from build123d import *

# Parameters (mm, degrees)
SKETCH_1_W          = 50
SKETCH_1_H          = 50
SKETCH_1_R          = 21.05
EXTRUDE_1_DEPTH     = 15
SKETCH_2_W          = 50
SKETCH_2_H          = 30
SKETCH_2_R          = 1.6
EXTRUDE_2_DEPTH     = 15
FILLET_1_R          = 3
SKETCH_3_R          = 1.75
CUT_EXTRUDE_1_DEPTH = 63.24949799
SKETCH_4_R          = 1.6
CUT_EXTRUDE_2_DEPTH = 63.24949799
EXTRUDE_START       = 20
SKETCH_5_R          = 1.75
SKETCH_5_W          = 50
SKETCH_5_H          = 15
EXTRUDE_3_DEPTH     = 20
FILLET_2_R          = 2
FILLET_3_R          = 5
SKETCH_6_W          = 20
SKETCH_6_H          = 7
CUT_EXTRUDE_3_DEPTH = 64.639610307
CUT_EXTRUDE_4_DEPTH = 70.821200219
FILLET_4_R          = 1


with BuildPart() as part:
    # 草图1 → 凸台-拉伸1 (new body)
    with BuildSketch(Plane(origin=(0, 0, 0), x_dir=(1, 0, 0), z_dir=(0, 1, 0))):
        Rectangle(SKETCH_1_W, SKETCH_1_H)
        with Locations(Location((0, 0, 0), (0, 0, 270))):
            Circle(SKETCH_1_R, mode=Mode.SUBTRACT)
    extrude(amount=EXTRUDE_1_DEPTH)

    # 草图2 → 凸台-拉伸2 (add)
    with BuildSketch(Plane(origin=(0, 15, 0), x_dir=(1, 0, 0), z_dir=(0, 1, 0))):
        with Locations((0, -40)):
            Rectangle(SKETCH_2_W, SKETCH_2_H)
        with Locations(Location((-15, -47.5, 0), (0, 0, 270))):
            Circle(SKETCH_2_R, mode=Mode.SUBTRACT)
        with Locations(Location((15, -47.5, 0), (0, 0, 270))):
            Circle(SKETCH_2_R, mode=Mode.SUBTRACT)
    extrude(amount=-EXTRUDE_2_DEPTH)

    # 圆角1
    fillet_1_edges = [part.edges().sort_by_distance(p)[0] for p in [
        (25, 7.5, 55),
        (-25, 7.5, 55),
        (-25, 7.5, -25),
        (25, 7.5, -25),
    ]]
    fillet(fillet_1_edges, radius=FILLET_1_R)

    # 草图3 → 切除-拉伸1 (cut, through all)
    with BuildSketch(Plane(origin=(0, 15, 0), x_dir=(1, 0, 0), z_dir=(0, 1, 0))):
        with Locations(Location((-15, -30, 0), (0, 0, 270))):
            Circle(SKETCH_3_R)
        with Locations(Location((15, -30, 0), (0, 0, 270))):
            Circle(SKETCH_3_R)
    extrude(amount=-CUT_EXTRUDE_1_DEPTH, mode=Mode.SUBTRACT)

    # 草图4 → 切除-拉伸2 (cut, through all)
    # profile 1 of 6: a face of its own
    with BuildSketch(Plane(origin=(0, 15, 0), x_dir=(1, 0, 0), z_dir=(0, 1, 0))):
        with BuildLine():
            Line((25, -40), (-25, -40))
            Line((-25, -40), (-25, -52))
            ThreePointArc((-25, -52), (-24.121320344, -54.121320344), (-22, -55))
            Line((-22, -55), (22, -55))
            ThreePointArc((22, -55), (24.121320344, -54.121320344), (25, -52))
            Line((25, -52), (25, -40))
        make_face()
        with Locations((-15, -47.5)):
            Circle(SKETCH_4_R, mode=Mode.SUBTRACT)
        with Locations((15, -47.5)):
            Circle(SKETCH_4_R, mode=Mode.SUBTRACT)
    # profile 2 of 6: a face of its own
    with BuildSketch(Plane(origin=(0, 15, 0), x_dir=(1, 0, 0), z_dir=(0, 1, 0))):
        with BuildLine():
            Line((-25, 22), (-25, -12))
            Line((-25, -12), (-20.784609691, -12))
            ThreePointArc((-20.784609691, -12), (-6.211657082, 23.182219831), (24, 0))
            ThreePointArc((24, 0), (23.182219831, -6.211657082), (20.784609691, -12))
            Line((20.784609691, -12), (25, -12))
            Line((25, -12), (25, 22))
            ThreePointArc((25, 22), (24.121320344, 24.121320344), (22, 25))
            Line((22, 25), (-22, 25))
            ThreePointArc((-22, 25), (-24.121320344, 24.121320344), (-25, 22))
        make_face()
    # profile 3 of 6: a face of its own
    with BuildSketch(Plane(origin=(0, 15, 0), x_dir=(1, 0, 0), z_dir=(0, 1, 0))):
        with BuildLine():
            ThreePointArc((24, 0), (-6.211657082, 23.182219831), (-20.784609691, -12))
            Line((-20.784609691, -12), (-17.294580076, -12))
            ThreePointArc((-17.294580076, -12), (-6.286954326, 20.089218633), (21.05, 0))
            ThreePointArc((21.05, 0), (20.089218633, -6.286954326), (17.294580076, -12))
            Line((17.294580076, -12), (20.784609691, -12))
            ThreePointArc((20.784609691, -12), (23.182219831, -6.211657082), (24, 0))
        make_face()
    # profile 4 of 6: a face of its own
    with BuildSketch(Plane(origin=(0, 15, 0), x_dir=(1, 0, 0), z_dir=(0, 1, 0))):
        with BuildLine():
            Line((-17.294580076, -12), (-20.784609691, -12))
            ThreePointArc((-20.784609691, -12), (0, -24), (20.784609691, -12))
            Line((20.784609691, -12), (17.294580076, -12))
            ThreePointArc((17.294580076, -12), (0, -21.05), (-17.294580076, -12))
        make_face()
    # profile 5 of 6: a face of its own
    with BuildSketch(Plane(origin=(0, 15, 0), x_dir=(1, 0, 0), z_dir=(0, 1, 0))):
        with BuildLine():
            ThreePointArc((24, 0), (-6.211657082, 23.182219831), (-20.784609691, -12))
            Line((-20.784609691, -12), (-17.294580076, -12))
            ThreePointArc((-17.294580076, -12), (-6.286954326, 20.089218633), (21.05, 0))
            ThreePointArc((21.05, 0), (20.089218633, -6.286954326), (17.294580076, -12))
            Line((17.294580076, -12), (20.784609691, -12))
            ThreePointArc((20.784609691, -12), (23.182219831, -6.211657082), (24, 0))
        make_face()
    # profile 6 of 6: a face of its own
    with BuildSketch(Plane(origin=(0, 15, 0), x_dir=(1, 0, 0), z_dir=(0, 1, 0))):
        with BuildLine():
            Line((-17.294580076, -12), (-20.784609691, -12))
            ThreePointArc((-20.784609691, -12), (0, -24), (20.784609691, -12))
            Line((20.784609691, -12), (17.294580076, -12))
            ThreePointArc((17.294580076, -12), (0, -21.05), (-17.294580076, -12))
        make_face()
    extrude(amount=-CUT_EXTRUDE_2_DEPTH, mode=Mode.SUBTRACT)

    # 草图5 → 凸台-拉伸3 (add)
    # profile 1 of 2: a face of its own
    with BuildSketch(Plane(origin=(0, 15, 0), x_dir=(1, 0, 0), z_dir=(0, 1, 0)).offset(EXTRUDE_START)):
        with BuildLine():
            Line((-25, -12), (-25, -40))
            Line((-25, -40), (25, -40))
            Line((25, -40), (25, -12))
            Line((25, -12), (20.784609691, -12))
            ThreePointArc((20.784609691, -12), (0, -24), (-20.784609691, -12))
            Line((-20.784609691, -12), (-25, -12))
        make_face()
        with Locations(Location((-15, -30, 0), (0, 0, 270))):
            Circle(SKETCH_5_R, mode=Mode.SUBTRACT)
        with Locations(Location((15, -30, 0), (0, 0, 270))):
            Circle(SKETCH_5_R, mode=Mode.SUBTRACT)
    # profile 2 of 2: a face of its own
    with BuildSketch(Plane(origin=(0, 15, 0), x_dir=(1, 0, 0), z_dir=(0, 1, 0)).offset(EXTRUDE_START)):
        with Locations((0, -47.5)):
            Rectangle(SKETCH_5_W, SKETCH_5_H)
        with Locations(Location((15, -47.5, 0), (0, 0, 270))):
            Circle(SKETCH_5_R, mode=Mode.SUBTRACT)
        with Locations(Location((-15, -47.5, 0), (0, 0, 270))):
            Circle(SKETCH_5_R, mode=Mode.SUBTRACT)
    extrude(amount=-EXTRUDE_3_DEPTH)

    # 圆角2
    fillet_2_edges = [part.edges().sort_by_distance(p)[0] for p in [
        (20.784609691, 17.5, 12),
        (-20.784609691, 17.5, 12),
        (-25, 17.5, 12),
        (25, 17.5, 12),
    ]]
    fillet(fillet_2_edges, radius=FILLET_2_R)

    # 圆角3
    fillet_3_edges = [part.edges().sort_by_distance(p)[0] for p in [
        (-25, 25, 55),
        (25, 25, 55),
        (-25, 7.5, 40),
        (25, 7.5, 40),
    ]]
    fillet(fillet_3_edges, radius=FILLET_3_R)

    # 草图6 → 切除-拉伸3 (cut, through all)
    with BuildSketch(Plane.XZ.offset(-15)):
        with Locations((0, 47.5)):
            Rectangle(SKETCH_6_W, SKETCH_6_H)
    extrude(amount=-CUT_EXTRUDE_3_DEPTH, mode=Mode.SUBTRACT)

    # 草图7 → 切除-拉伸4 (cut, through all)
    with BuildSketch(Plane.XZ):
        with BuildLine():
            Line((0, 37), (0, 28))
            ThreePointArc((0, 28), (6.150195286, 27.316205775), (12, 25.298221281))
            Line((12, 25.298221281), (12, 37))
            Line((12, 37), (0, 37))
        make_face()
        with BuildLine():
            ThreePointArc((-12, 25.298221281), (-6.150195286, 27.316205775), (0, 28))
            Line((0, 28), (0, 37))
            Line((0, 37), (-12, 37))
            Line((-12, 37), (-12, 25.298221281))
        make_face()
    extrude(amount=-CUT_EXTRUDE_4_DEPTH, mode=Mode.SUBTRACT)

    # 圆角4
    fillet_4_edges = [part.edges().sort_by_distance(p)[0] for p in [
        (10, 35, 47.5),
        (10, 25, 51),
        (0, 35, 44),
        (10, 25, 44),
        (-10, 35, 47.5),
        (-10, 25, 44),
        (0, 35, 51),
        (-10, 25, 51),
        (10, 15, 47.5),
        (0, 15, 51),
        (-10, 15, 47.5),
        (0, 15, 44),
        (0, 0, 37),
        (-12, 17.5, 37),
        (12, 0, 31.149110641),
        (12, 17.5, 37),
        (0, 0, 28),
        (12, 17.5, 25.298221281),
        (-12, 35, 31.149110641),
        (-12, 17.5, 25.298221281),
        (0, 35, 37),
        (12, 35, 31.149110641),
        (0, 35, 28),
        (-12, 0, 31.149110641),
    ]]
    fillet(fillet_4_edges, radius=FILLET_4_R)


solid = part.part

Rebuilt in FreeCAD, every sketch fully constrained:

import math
import FreeCAD as App
import Part
import Sketcher


def edges_at(feature, points):
    """Names of the edges that pass closest to the given points."""
    edges = feature.Shape.Edges
    near = lambda p: min(range(len(edges)), key=lambda i: edges[i].distToShape(Part.Vertex(*p))[0])
    return sorted({f"Edge{near(p) + 1}" for p in points})


def add_polygon(sketch, points):
    """Adds a closed chain of lines whose ends are joined by coincident constraints."""
    first, n = sketch.GeometryCount, len(points)
    for a, b in zip(points, points[1:] + points[:1]):
        sketch.addGeometry(Part.LineSegment(App.Vector(*a, 0), App.Vector(*b, 0)), False)
    for i in range(n):
        sketch.addConstraint(Sketcher.Constraint("Coincident", first + i, 2, first + (i + 1) % n, 1))

doc = App.newDocument("Part")
body = doc.addObject("PartDesign::Body", "Body")

# Sketch on XZ plane
sketch1 = body.newObject("Sketcher::SketchObject", "Sketch")
sketch1.AttachmentSupport = (doc.getObject("XZ_Plane"), [""])
sketch1.MapMode = "FlatFace"
add_polygon(sketch1, [(-25, -25), (-25, 25), (25, 25), (25, -25)])  # lines 0-3
sketch1.addGeometry(Part.Circle(App.Vector(0, 0, 0), App.Vector(0, 0, 1), 21), False)  # 4
sketch1.addConstraint(Sketcher.Constraint("Vertical", 0))
sketch1.addConstraint(Sketcher.Constraint("Horizontal", 1))
sketch1.addConstraint(Sketcher.Constraint("Vertical", 2))
sketch1.addConstraint(Sketcher.Constraint("Horizontal", 3))
sketch1.addConstraint(Sketcher.Constraint("Coincident", 4, 3, -1, 1))
sketch1.addConstraint(Sketcher.Constraint("Symmetric", 0, 2, 2, 2, -1, 1))
sketch1.addConstraint(Sketcher.Constraint("Equal", 3, 0))
sketch1.addConstraint(Sketcher.Constraint("Diameter", 4, 42.1))
sketch1.addConstraint(Sketcher.Constraint("DistanceX", 1, 1, 1, 2, 50.0))
pad1 = body.newObject("PartDesign::Pad", "Pad")
pad1.Profile = sketch1
pad1.Length = 15
pad1.Reversed = True

# Sketch on XZ plane
sketch2 = body.newObject("Sketcher::SketchObject", "Sketch001")
sketch2.AttachmentSupport = (doc.getObject("XZ_Plane"), [""])
sketch2.MapMode = "FlatFace"
sketch2.AttachmentOffset = App.Placement(App.Vector(0, 0, -15), App.Rotation())
add_polygon(sketch2, [(-25, 25), (-25, 55), (25, 55), (25, 25)])  # lines 0-3
sketch2.addGeometry(Part.Circle(App.Vector(-15, 47.5, 0), App.Vector(0, 0, 1), 1.6), False)  # 4
sketch2.addGeometry(Part.Circle(App.Vector(15, 47.5, 0), App.Vector(0, 0, 1), 1.6), False)  # 5
sketch2.addConstraint(Sketcher.Constraint("Vertical", 0))
sketch2.addConstraint(Sketcher.Constraint("Horizontal", 1))
sketch2.addConstraint(Sketcher.Constraint("Vertical", 2))
sketch2.addConstraint(Sketcher.Constraint("Horizontal", 3))
sketch2.addConstraint(Sketcher.Constraint("Equal", 4, 5))
sketch2.addConstraint(Sketcher.Constraint("Symmetric", 4, 3, 5, 3, -2))
sketch2.addConstraint(Sketcher.Constraint("Diameter", 4, 3.2))
sketch2.addConstraint(Sketcher.Constraint("DistanceX", 1, 1, 1, 2, 50.0))
sketch2.addConstraint(Sketcher.Constraint("DistanceY", 0, 1, 0, 2, 30.0))
sketch2.addConstraint(Sketcher.Constraint("DistanceX", 4, 3, -1, 1, 15.0))
sketch2.addConstraint(Sketcher.Constraint("DistanceX", 0, 2, -1, 1, 25.0))
sketch2.addConstraint(Sketcher.Constraint("DistanceY", -1, 1, 0, 2, 55.0))
sketch2.addConstraint(Sketcher.Constraint("DistanceY", -1, 1, 4, 3, 47.5))
pad2 = body.newObject("PartDesign::Pad", "Pad001")
pad2.Profile = sketch2
pad2.Length = 15
doc.recompute()

fillet = body.newObject("PartDesign::Fillet", "Fillet")
fillet.Base = (pad2, edges_at(pad2, [
    (25, 7.5, 55),
    (-25, 7.5, 55),
    (-25, 7.5, -25),
    (25, 7.5, -25),
]))
fillet.Radius = 3

# Sketch on XZ plane
sketch3 = body.newObject("Sketcher::SketchObject", "Sketch002")
sketch3.AttachmentSupport = (doc.getObject("XZ_Plane"), [""])
sketch3.MapMode = "FlatFace"
sketch3.AttachmentOffset = App.Placement(App.Vector(0, 0, -15), App.Rotation())
sketch3.addGeometry(Part.Circle(App.Vector(-15, 30, 0), App.Vector(0, 0, 1), 1.8), False)
sketch3.addGeometry(Part.Circle(App.Vector(15, 30, 0), App.Vector(0, 0, 1), 1.8), False)
sketch3.addConstraint(Sketcher.Constraint("Equal", 0, 1))
sketch3.addConstraint(Sketcher.Constraint("Symmetric", 0, 3, 1, 3, -2))
sketch3.addConstraint(Sketcher.Constraint("Diameter", 0, 3.5))
sketch3.addConstraint(Sketcher.Constraint("DistanceX", 0, 3, -1, 1, 15.0))
sketch3.addConstraint(Sketcher.Constraint("DistanceY", -1, 1, 0, 3, 30.0))
pocket1 = body.newObject("PartDesign::Pocket", "Pocket")
pocket1.Profile = sketch3
pocket1.Type = "ThroughAll"
pocket1.Reversed = True

# Sketch on XZ plane
sketch4 = body.newObject("Sketcher::SketchObject", "Sketch003")
sketch4.AttachmentSupport = (doc.getObject("XZ_Plane"), [""])
sketch4.MapMode = "FlatFace"
sketch4.AttachmentOffset = App.Placement(App.Vector(0, 0, -15), App.Rotation())
sketch4.addGeometry(Part.LineSegment(App.Vector(25, 40, 0), App.Vector(-25, 40, 0)), False)
sketch4.addGeometry(Part.LineSegment(App.Vector(-25, 40, 0), App.Vector(-25, 52, 0)), False)
sketch4.addGeometry(Part.ArcOfCircle(Part.Circle(App.Vector(-22, 52, 0), App.Vector(0, 0, 1), 3), math.radians(90), math.radians(180)), False)
sketch4.addGeometry(Part.LineSegment(App.Vector(-22, 55, 0), App.Vector(22, 55, 0)), False)
sketch4.addGeometry(Part.ArcOfCircle(Part.Circle(App.Vector(22, 52, 0), App.Vector(0, 0, 1), 3), math.radians(0), math.radians(90)), False)
sketch4.addGeometry(Part.LineSegment(App.Vector(25, 52, 0), App.Vector(25, 40, 0)), False)
sketch4.addGeometry(Part.Circle(App.Vector(-15, 47.5, 0), App.Vector(0, 0, 1), 1.6), False)
sketch4.addGeometry(Part.Circle(App.Vector(15, 47.5, 0), App.Vector(0, 0, 1), 1.6), False)
sketch4.addGeometry(Part.LineSegment(App.Vector(-25, -22, 0), App.Vector(-25, 12, 0)), False)
sketch4.addGeometry(Part.LineSegment(App.Vector(-25, 12, 0), App.Vector(-20.8, 12, 0)), False)
sketch4.addGeometry(Part.ArcOfCircle(Part.Circle(App.Vector(0, 0, 0), App.Vector(0, 0, 1), 24), math.radians(30), math.radians(150)), False)
sketch4.addGeometry(Part.LineSegment(App.Vector(20.8, 12, 0), App.Vector(25, 12, 0)), False)
sketch4.addGeometry(Part.LineSegment(App.Vector(25, 12, 0), App.Vector(25, -22, 0)), False)
sketch4.addGeometry(Part.ArcOfCircle(Part.Circle(App.Vector(22, -22, 0), App.Vector(0, 0, 1), 3), math.radians(-90), math.radians(0)), False)
sketch4.addGeometry(Part.LineSegment(App.Vector(22, -25, 0), App.Vector(-22, -25, 0)), False)
sketch4.addGeometry(Part.ArcOfCircle(Part.Circle(App.Vector(-22, -22, 0), App.Vector(0, 0, 1), 3), math.radians(180), math.radians(270)), False)
sketch4.addGeometry(Part.ArcOfCircle(Part.Circle(App.Vector(0, 0, 0), App.Vector(0, 0, 1), 21.1), math.radians(145), math.radians(360)), False)
sketch4.addGeometry(Part.ArcOfCircle(Part.Circle(App.Vector(0, 0, 0), App.Vector(0, 0, 1), 21.1), math.radians(0), math.radians(35)), False)
sketch4.addGeometry(Part.ArcOfCircle(Part.Circle(App.Vector(0, 0, 0), App.Vector(0, 0, 1), 21.1), math.radians(35), math.radians(145)), False)
sketch4.addConstraint(Sketcher.Constraint("Coincident", 0, 2, 1, 1))
sketch4.addConstraint(Sketcher.Constraint("Tangent", 1, 2, 2, 2))
sketch4.addConstraint(Sketcher.Constraint("Tangent", 2, 1, 3, 1))
sketch4.addConstraint(Sketcher.Constraint("Tangent", 3, 2, 4, 2))
sketch4.addConstraint(Sketcher.Constraint("Tangent", 4, 1, 5, 1))
sketch4.addConstraint(Sketcher.Constraint("Coincident", 5, 2, 0, 1))
sketch4.addConstraint(Sketcher.Constraint("Coincident", 8, 2, 9, 1))
sketch4.addConstraint(Sketcher.Constraint("Coincident", 9, 2, 10, 2))
sketch4.addConstraint(Sketcher.Constraint("Coincident", 10, 1, 11, 1))
sketch4.addConstraint(Sketcher.Constraint("Coincident", 11, 2, 12, 1))
sketch4.addConstraint(Sketcher.Constraint("Tangent", 12, 2, 13, 2))
sketch4.addConstraint(Sketcher.Constraint("Tangent", 13, 1, 14, 1))
sketch4.addConstraint(Sketcher.Constraint("Tangent", 14, 2, 15, 2))
sketch4.addConstraint(Sketcher.Constraint("Tangent", 15, 1, 8, 1))
sketch4.addConstraint(Sketcher.Constraint("Tangent", 16, 2, 17, 1))
sketch4.addConstraint(Sketcher.Constraint("Tangent", 17, 2, 18, 1))
sketch4.addConstraint(Sketcher.Constraint("Tangent", 18, 2, 16, 1))
sketch4.addConstraint(Sketcher.Constraint("Horizontal", 0))
sketch4.addConstraint(Sketcher.Constraint("Vertical", 1))
sketch4.addConstraint(Sketcher.Constraint("Horizontal", 3))
sketch4.addConstraint(Sketcher.Constraint("Vertical", 5))
sketch4.addConstraint(Sketcher.Constraint("Vertical", 8))
sketch4.addConstraint(Sketcher.Constraint("Horizontal", 9))
sketch4.addConstraint(Sketcher.Constraint("Horizontal", 11))
sketch4.addConstraint(Sketcher.Constraint("Vertical", 12))
sketch4.addConstraint(Sketcher.Constraint("Horizontal", 14))
sketch4.addConstraint(Sketcher.Constraint("Coincident", 10, 3, -1, 1))
sketch4.addConstraint(Sketcher.Constraint("Coincident", 16, 3, -1, 1))
sketch4.addConstraint(Sketcher.Constraint("Equal", 2, 4))
sketch4.addConstraint(Sketcher.Constraint("Equal", 6, 7))
sketch4.addConstraint(Sketcher.Constraint("Equal", 4, 13))
sketch4.addConstraint(Sketcher.Constraint("Equal", 13, 15))
sketch4.addConstraint(Sketcher.Constraint("Symmetric", 6, 3, 7, 3, -2))
sketch4.addConstraint(Sketcher.Constraint("Symmetric", 8, 2, 11, 2, -2))
sketch4.addConstraint(Sketcher.Constraint("PointOnObject", 16, 2, -1))
sketch4.addConstraint(Sketcher.Constraint("Horizontal", 11, 2, 17, 2))
sketch4.addConstraint(Sketcher.Constraint("Horizontal", 17, 2, 18, 2))
sketch4.addConstraint(Sketcher.Constraint("Vertical", 4, 3, 13, 3))
sketch4.addConstraint(Sketcher.Constraint("Vertical", 2, 3, 15, 3))
sketch4.addConstraint(Sketcher.Constraint("Radius", 2, 3.0))
sketch4.addConstraint(Sketcher.Constraint("Radius", 10, 24.0))
sketch4.addConstraint(Sketcher.Constraint("Diameter", 6, 3.2))
sketch4.addConstraint(Sketcher.Constraint("DistanceX", 0, 2, 0, 1, 50.0))
sketch4.addConstraint(Sketcher.Constraint("DistanceY", 1, 1, 1, 2, 12.0))
sketch4.addConstraint(Sketcher.Constraint("DistanceY", 8, 1, 8, 2, 34.0))
sketch4.addConstraint(Sketcher.Constraint("Radius", 16, 21.05))
sketch4.addConstraint(Sketcher.Constraint("DistanceY", -1, 1, 2, 3, 52.0))
sketch4.addConstraint(Sketcher.Constraint("DistanceX", 6, 3, -1, 1, 15.0))
sketch4.addConstraint(Sketcher.Constraint("DistanceY", 13, 3, -1, 1, 22.0))
sketch4.addConstraint(Sketcher.Constraint("DistanceY", -1, 1, 6, 3, 47.5))
pocket2 = body.newObject("PartDesign::Pocket", "Pocket001")
pocket2.Profile = sketch4
pocket2.Length = 63.249498
pocket2.Reversed = True

# Sketch on XZ plane
sketch5 = body.newObject("Sketcher::SketchObject", "Sketch004")
sketch5.AttachmentSupport = (doc.getObject("XZ_Plane"), [""])
sketch5.MapMode = "FlatFace"
sketch5.AttachmentOffset = App.Placement(App.Vector(0, 0, -35), App.Rotation())
sketch5.addGeometry(Part.LineSegment(App.Vector(-25, 12, 0), App.Vector(-25, 55, 0)), False)
sketch5.addGeometry(Part.LineSegment(App.Vector(-25, 55, 0), App.Vector(25, 55, 0)), False)
sketch5.addGeometry(Part.LineSegment(App.Vector(25, 55, 0), App.Vector(25, 12, 0)), False)
sketch5.addGeometry(Part.LineSegment(App.Vector(25, 12, 0), App.Vector(20.8, 12, 0)), False)
sketch5.addGeometry(Part.ArcOfCircle(Part.Circle(App.Vector(0, 0, 0), App.Vector(0, 0, 1), 24), math.radians(30), math.radians(150)), False)
sketch5.addGeometry(Part.LineSegment(App.Vector(-20.8, 12, 0), App.Vector(-25, 12, 0)), False)
sketch5.addGeometry(Part.Circle(App.Vector(-15, 30, 0), App.Vector(0, 0, 1), 1.8), False)
sketch5.addGeometry(Part.Circle(App.Vector(15, 30, 0), App.Vector(0, 0, 1), 1.8), False)
sketch5.addGeometry(Part.Circle(App.Vector(15, 47.5, 0), App.Vector(0, 0, 1), 1.8), False)
sketch5.addGeometry(Part.Circle(App.Vector(-15, 47.5, 0), App.Vector(0, 0, 1), 1.8), False)
sketch5.addConstraint(Sketcher.Constraint("Coincident", 0, 2, 1, 1))
sketch5.addConstraint(Sketcher.Constraint("Coincident", 1, 2, 2, 1))
sketch5.addConstraint(Sketcher.Constraint("Coincident", 2, 2, 3, 1))
sketch5.addConstraint(Sketcher.Constraint("Coincident", 3, 2, 4, 1))
sketch5.addConstraint(Sketcher.Constraint("Coincident", 4, 2, 5, 1))
sketch5.addConstraint(Sketcher.Constraint("Coincident", 5, 2, 0, 1))
sketch5.addConstraint(Sketcher.Constraint("Vertical", 0))
sketch5.addConstraint(Sketcher.Constraint("Horizontal", 1))
sketch5.addConstraint(Sketcher.Constraint("Vertical", 2))
sketch5.addConstraint(Sketcher.Constraint("Horizontal", 3))
sketch5.addConstraint(Sketcher.Constraint("Horizontal", 5))
sketch5.addConstraint(Sketcher.Constraint("Coincident", 4, 3, -1, 1))
sketch5.addConstraint(Sketcher.Constraint("Equal", 6, 7))
sketch5.addConstraint(Sketcher.Constraint("Equal", 7, 8))
sketch5.addConstraint(Sketcher.Constraint("Equal", 8, 9))
sketch5.addConstraint(Sketcher.Constraint("Symmetric", 6, 3, 7, 3, -2))
sketch5.addConstraint(Sketcher.Constraint("Symmetric", 8, 3, 9, 3, -2))
sketch5.addConstraint(Sketcher.Constraint("Symmetric", 2, 2, 5, 2, -2))
sketch5.addConstraint(Sketcher.Constraint("Vertical", 7, 3, 8, 3))
sketch5.addConstraint(Sketcher.Constraint("Radius", 4, 24.0))
sketch5.addConstraint(Sketcher.Constraint("Diameter", 6, 3.5))
sketch5.addConstraint(Sketcher.Constraint("DistanceX", 1, 1, 1, 2, 50.0))
sketch5.addConstraint(Sketcher.Constraint("DistanceY", 0, 1, 0, 2, 43.0))
sketch5.addConstraint(Sketcher.Constraint("DistanceX", 6, 3, -1, 1, 15.0))
sketch5.addConstraint(Sketcher.Constraint("DistanceY", -1, 1, 6, 3, 30.0))
sketch5.addConstraint(Sketcher.Constraint("DistanceY", -1, 1, 0, 2, 55.0))
sketch5.addConstraint(Sketcher.Constraint("DistanceY", -1, 1, 8, 3, 47.5))
pad3 = body.newObject("PartDesign::Pad", "Pad002")
pad3.Profile = sketch5
pad3.Length = 20
doc.recompute()

fillet2 = body.newObject("PartDesign::Fillet", "Fillet001")
fillet2.Base = (pad3, edges_at(pad3, [
    (20.785, 17.5, 12),
    (-20.785, 17.5, 12),
    (-25, 17.5, 12),
    (25, 17.5, 12),
]))
fillet2.Radius = 2
doc.recompute()

fillet3 = body.newObject("PartDesign::Fillet", "Fillet002")
fillet3.Base = (fillet2, edges_at(fillet2, [
    (-25, 25, 55),
    (25, 25, 55),
    (-25, 7.5, 40),
    (25, 7.5, 40),
]))
fillet3.Radius = 5

# Sketch on XZ plane
sketch6 = body.newObject("Sketcher::SketchObject", "Sketch005")
sketch6.AttachmentSupport = (doc.getObject("XZ_Plane"), [""])
sketch6.MapMode = "FlatFace"
sketch6.AttachmentOffset = App.Placement(App.Vector(0, 0, -15), App.Rotation())
add_polygon(sketch6, [(-10, 51), (-10, 44), (10, 44), (10, 51)])  # lines 0-3
sketch6.addConstraint(Sketcher.Constraint("Vertical", 0))
sketch6.addConstraint(Sketcher.Constraint("Horizontal", 1))
sketch6.addConstraint(Sketcher.Constraint("Vertical", 2))
sketch6.addConstraint(Sketcher.Constraint("Horizontal", 3))
sketch6.addConstraint(Sketcher.Constraint("DistanceX", 1, 1, 1, 2, 20.0))
sketch6.addConstraint(Sketcher.Constraint("DistanceY", 0, 2, 0, 1, 7.0))
sketch6.addConstraint(Sketcher.Constraint("DistanceX", 0, 2, -1, 1, 10.0))
sketch6.addConstraint(Sketcher.Constraint("DistanceY", -1, 1, 0, 2, 44.0))
pocket3 = body.newObject("PartDesign::Pocket", "Pocket002")
pocket3.Profile = sketch6
pocket3.Type = "ThroughAll"

# Sketch on XZ plane
sketch7 = body.newObject("Sketcher::SketchObject", "Sketch006")
sketch7.AttachmentSupport = (doc.getObject("XZ_Plane"), [""])
sketch7.MapMode = "FlatFace"
sketch7.addGeometry(Part.ArcOfCircle(Part.Circle(App.Vector(0, 0, 0), App.Vector(0, 0, 1), 28), math.radians(65), math.radians(90)), False)
sketch7.addGeometry(Part.LineSegment(App.Vector(12, 25, 0), App.Vector(12, 37, 0)), False)
sketch7.addGeometry(Part.LineSegment(App.Vector(12, 37, 0), App.Vector(-12, 37, 0)), False)
sketch7.addGeometry(Part.LineSegment(App.Vector(-12, 37, 0), App.Vector(-12, 25, 0)), False)
sketch7.addGeometry(Part.ArcOfCircle(Part.Circle(App.Vector(0, 0, 0), App.Vector(0, 0, 1), 28), math.radians(90), math.radians(115)), False)
sketch7.addConstraint(Sketcher.Constraint("Coincident", 0, 1, 1, 1))
sketch7.addConstraint(Sketcher.Constraint("Coincident", 1, 2, 2, 1))
sketch7.addConstraint(Sketcher.Constraint("Coincident", 2, 2, 3, 1))
sketch7.addConstraint(Sketcher.Constraint("Coincident", 3, 2, 4, 2))
sketch7.addConstraint(Sketcher.Constraint("Tangent", 4, 1, 0, 2))
sketch7.addConstraint(Sketcher.Constraint("Vertical", 1))
sketch7.addConstraint(Sketcher.Constraint("Horizontal", 2))
sketch7.addConstraint(Sketcher.Constraint("Vertical", 3))
sketch7.addConstraint(Sketcher.Constraint("Coincident", 0, 3, -1, 1))
sketch7.addConstraint(Sketcher.Constraint("Equal", 0, 4))
sketch7.addConstraint(Sketcher.Constraint("PointOnObject", 4, 1, -2))
sketch7.addConstraint(Sketcher.Constraint("Horizontal", 0, 1, 3, 2))
sketch7.addConstraint(Sketcher.Constraint("Radius", 0, 28.0))
sketch7.addConstraint(Sketcher.Constraint("DistanceX", 2, 2, 2, 1, 24.0))
sketch7.addConstraint(Sketcher.Constraint("DistanceY", -1, 1, 1, 2, 37.0))
pocket4 = body.newObject("PartDesign::Pocket", "Pocket003")
pocket4.Profile = sketch7
pocket4.Type = "ThroughAll"
doc.recompute()

fillet4 = body.newObject("PartDesign::Fillet", "Fillet003")
fillet4.Base = (pocket4, edges_at(pocket4, [
    (10, 35, 47.5),
    (10, 25, 51),
    (0, 35, 44),
    (10, 25, 44),
    (-10, 35, 47.5),
    (-10, 25, 44),
    (0, 35, 51),
    (-10, 25, 51),
    (10, 15, 47.5),
    (0, 15, 51),
    (-10, 15, 47.5),
    (0, 15, 44),
    (0, 0, 37),
    (-12, 17.5, 37),
    (12, 0, 31.149),
    (12, 17.5, 37),
    (-6.15, 0, 27.316),
    (12, 17.5, 25.298),
    (-12, 35, 31.149),
    (-12, 17.5, 25.298),
    (0, 35, 37),
    (12, 35, 31.149),
    (6.15, 35, 27.316),
    (-12, 0, 31.149),
]))
fillet4.Radius = 1

doc.recompute()
